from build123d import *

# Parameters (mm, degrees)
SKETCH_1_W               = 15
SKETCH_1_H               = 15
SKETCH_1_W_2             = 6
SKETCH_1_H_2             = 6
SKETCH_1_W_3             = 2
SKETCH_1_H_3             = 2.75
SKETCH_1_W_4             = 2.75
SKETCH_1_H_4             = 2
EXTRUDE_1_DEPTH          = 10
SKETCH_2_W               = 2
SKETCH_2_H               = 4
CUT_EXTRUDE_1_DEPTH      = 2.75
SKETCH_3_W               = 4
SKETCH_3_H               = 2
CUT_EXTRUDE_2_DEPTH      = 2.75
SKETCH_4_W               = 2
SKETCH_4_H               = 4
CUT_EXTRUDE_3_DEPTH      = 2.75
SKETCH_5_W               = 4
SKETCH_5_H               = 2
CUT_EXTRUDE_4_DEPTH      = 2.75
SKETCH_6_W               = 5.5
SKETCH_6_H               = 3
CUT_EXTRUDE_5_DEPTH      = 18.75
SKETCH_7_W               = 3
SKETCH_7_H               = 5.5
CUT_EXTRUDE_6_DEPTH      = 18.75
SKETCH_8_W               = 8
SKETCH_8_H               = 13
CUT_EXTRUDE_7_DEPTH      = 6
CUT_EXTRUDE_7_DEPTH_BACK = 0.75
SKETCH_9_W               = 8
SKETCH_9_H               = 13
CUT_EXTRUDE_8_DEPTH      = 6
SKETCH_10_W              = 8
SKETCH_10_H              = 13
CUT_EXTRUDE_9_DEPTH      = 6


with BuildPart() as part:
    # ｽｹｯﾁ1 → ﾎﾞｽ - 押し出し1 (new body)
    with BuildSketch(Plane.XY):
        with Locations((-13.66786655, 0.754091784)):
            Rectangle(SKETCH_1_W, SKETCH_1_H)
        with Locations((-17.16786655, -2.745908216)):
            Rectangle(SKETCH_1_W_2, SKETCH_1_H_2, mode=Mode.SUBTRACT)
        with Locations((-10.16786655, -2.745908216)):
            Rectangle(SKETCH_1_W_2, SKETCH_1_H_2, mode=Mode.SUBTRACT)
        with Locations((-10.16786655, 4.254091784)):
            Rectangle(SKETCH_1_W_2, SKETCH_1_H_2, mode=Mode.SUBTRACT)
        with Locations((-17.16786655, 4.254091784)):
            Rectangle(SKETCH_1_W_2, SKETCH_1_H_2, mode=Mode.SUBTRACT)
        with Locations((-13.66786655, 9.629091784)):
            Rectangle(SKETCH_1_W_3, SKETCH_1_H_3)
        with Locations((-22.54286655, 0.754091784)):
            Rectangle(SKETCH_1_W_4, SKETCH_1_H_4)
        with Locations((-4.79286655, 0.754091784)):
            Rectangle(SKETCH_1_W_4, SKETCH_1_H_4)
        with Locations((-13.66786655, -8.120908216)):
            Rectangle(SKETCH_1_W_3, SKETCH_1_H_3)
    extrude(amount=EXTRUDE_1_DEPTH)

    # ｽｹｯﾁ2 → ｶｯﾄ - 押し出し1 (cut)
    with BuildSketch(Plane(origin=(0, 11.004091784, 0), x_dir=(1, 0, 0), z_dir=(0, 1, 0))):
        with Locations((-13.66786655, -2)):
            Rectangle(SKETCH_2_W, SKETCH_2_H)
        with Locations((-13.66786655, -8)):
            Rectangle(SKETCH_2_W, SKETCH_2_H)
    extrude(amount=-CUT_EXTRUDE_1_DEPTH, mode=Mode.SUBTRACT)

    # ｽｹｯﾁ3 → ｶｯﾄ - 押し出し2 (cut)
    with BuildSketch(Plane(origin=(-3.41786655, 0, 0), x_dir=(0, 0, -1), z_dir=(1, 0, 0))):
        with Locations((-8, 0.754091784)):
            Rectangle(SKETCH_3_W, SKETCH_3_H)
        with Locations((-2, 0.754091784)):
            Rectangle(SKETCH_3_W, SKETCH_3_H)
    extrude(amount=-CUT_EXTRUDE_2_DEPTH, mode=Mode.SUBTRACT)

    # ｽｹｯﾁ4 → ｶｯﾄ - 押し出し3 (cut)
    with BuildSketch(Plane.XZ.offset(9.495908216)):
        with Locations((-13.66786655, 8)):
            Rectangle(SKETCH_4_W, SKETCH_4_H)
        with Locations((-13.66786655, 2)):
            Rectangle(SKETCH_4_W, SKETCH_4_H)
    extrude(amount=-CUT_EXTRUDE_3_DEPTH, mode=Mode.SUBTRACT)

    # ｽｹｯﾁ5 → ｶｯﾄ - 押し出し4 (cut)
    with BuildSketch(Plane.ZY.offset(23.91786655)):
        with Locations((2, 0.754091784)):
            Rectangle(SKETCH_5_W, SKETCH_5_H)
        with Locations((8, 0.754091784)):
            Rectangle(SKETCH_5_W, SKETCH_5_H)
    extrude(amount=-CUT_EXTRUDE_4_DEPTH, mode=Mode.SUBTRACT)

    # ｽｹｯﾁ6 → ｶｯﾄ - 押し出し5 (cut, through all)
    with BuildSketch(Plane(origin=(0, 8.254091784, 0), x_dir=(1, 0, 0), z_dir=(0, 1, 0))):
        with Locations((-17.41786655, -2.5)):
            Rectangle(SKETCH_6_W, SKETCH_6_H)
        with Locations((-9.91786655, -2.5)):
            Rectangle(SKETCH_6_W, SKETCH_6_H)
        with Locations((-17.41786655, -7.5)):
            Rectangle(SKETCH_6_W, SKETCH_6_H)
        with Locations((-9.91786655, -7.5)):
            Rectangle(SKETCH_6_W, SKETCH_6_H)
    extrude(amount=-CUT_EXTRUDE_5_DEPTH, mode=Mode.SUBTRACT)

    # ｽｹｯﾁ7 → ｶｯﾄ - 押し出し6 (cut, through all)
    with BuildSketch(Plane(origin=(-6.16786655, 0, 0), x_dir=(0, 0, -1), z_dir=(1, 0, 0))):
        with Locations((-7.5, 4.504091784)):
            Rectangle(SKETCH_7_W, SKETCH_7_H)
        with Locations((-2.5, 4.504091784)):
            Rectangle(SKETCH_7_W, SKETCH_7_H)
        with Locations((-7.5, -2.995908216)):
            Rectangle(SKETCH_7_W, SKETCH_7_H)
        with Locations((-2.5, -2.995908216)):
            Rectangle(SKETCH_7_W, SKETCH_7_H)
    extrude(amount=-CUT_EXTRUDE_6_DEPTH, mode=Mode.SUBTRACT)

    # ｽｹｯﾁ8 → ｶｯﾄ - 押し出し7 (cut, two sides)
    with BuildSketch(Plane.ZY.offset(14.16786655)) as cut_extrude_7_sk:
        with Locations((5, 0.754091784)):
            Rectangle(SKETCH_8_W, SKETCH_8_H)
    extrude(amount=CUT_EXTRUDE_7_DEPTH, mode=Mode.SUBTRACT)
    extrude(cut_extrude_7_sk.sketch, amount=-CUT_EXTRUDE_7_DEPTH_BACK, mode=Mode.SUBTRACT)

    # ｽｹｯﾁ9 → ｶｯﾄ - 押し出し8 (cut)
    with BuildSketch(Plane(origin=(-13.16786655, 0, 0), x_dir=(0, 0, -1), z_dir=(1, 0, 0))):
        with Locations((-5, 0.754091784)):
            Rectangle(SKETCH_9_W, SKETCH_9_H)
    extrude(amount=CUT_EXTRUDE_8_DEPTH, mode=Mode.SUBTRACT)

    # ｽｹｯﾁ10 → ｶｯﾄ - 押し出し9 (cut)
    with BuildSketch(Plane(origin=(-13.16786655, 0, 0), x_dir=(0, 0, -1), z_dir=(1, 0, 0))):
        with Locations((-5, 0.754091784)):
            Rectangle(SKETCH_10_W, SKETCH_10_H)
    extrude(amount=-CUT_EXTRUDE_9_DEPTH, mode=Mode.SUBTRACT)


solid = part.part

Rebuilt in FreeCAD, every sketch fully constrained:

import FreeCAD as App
import Part
import Sketcher

doc = App.newDocument("Part")
params = doc.addObject("Spreadsheet::Sheet", "Params")
for row, (alias, value) in enumerate([
    ("sketch1_width", "2 mm"),
    ("sketch1_width2", "6 mm"),
    ("sketch1_width3", "6.5 mm"),
    ("sketch1_width4", "2.75 mm"),
    ("pad1_length", "10 mm"),
    ("sketch2_width", "2 mm"),
    ("sketch2_height", "4 mm"),
    ("pocket1_length", "2.75 mm"),
    ("sketch3_width", "2 mm"),
    ("sketch3_height", "4 mm"),
    ("pocket2_length", "2.75 mm"),
    ("sketch4_width", "2 mm"),
    ("sketch4_height", "4 mm"),
    ("pocket3_length", "2.75 mm"),
    ("sketch5_width", "2 mm"),
    ("sketch5_height", "4 mm"),
    ("pocket4_length", "2.75 mm"),
    ("sketch6_height", "3 mm"),
    ("sketch6_width", "5.5 mm"),
    ("sketch7_height", "3 mm"),
    ("sketch7_width", "5.5 mm"),
    ("sketch8_width", "13 mm"),
    ("sketch8_height", "8 mm"),
    ("pocket7_length", "6 mm"),
    ("pocket7_length2", "0.75 mm"),
    ("sketch9_width", "13 mm"),
    ("sketch9_height", "8 mm"),
    ("pocket8_length", "6 mm"),
    ("sketch10_width", "13 mm"),
    ("sketch10_height", "8 mm"),
    ("pocket9_length", "6 mm"),
], start=1):
    params.set(f"A{row}", alias)
    params.set(f"B{row}", "=" + value)
    params.setAlias(f"B{row}", alias)

body = doc.addObject("PartDesign::Body", "Body")

# Sketch on XY plane
sketch1 = body.newObject("Sketcher::SketchObject", "Sketch")
sketch1.AttachmentSupport = (doc.getObject("XY_Plane"), [""])
sketch1.MapMode = "FlatFace"
sketch1.addGeometry([
    Part.LineSegment(App.Vector(-21.167867, -0.245908, 0), App.Vector(-21.167867, -6.745908, 0)),  # 0
    Part.LineSegment(App.Vector(-21.167867, -6.745908, 0), App.Vector(-14.667867, -6.745908, 0)),  # 1
    Part.LineSegment(App.Vector(-14.667867, -6.745908, 0), App.Vector(-14.667867, -9.495908, 0)),  # 2
    Part.LineSegment(App.Vector(-14.667867, -9.495908, 0), App.Vector(-12.667867, -9.495908, 0)),  # 3
    Part.LineSegment(App.Vector(-12.667867, -9.495908, 0), App.Vector(-12.667867, -6.745908, 0)),  # 4
    Part.LineSegment(App.Vector(-12.667867, -6.745908, 0), App.Vector(-6.167867, -6.745908, 0)),  # 5
    Part.LineSegment(App.Vector(-6.167867, -6.745908, 0), App.Vector(-6.167867, -0.245908, 0)),  # 6
    Part.LineSegment(App.Vector(-6.167867, -0.245908, 0), App.Vector(-3.417867, -0.245908, 0)),  # 7
    Part.LineSegment(App.Vector(-3.417867, -0.245908, 0), App.Vector(-3.417867, 1.754092, 0)),  # 8
    Part.LineSegment(App.Vector(-3.417867, 1.754092, 0), App.Vector(-6.167867, 1.754092, 0)),  # 9
    Part.LineSegment(App.Vector(-6.167867, 1.754092, 0), App.Vector(-6.167867, 8.254092, 0)),  # 10
    Part.LineSegment(App.Vector(-6.167867, 8.254092, 0), App.Vector(-12.667867, 8.254092, 0)),  # 11
    Part.LineSegment(App.Vector(-12.667867, 8.254092, 0), App.Vector(-12.667867, 11.004092, 0)),  # 12
    Part.LineSegment(App.Vector(-12.667867, 11.004092, 0), App.Vector(-14.667867, 11.004092, 0)),  # 13
    Part.LineSegment(App.Vector(-14.667867, 11.004092, 0), App.Vector(-14.667867, 8.254092, 0)),  # 14
    Part.LineSegment(App.Vector(-14.667867, 8.254092, 0), App.Vector(-21.167867, 8.254092, 0)),  # 15
    Part.LineSegment(App.Vector(-21.167867, 8.254092, 0), App.Vector(-21.167867, 1.754092, 0)),  # 16
    Part.LineSegment(App.Vector(-21.167867, 1.754092, 0), App.Vector(-23.917867, 1.754092, 0)),  # 17
    Part.LineSegment(App.Vector(-23.917867, 1.754092, 0), App.Vector(-23.917867, -0.245908, 0)),  # 18
    Part.LineSegment(App.Vector(-23.917867, -0.245908, 0), App.Vector(-21.167867, -0.245908, 0)),  # 19
    Part.LineSegment(App.Vector(-14.167867, -5.745908, 0), App.Vector(-20.167867, -5.745908, 0)),  # 20
    Part.LineSegment(App.Vector(-20.167867, -5.745908, 0), App.Vector(-20.167867, 0.254092, 0)),  # 21
    Part.LineSegment(App.Vector(-20.167867, 0.254092, 0), App.Vector(-14.167867, 0.254092, 0)),  # 22
    Part.LineSegment(App.Vector(-14.167867, 0.254092, 0), App.Vector(-14.167867, -5.745908, 0)),  # 23
    Part.LineSegment(App.Vector(-7.167867, -5.745908, 0), App.Vector(-13.167867, -5.745908, 0)),  # 24
    Part.LineSegment(App.Vector(-13.167867, -5.745908, 0), App.Vector(-13.167867, 0.254092, 0)),  # 25
    Part.LineSegment(App.Vector(-13.167867, 0.254092, 0), App.Vector(-7.167867, 0.254092, 0)),  # 26
    Part.LineSegment(App.Vector(-7.167867, 0.254092, 0), App.Vector(-7.167867, -5.745908, 0)),  # 27
    Part.LineSegment(App.Vector(-14.167867, 1.254092, 0), App.Vector(-20.167867, 1.254092, 0)),  # 28
    Part.LineSegment(App.Vector(-20.167867, 1.254092, 0), App.Vector(-20.167867, 7.254092, 0)),  # 29
    Part.LineSegment(App.Vector(-20.167867, 7.254092, 0), App.Vector(-14.167867, 7.254092, 0)),  # 30
    Part.LineSegment(App.Vector(-14.167867, 7.254092, 0), App.Vector(-14.167867, 1.254092, 0)),  # 31
    Part.LineSegment(App.Vector(-7.167867, 1.254092, 0), App.Vector(-13.167867, 1.254092, 0)),  # 32
    Part.LineSegment(App.Vector(-13.167867, 1.254092, 0), App.Vector(-13.167867, 7.254092, 0)),  # 33
    Part.LineSegment(App.Vector(-13.167867, 7.254092, 0), App.Vector(-7.167867, 7.254092, 0)),  # 34
    Part.LineSegment(App.Vector(-7.167867, 7.254092, 0), App.Vector(-7.167867, 1.254092, 0)),  # 35
], False)
sketch1.addConstraint([
    Sketcher.Constraint("Coincident", 0, 2, 1, 1),
    Sketcher.Constraint("Coincident", 1, 2, 2, 1),
    Sketcher.Constraint("Coincident", 2, 2, 3, 1),
    Sketcher.Constraint("Coincident", 3, 2, 4, 1),
    Sketcher.Constraint("Coincident", 4, 2, 5, 1),
    Sketcher.Constraint("Coincident", 5, 2, 6, 1),
    Sketcher.Constraint("Coincident", 6, 2, 7, 1),
    Sketcher.Constraint("Coincident", 7, 2, 8, 1),
    Sketcher.Constraint("Coincident", 8, 2, 9, 1),
    Sketcher.Constraint("Coincident", 9, 2, 10, 1),
    Sketcher.Constraint("Coincident", 10, 2, 11, 1),
    Sketcher.Constraint("Coincident", 11, 2, 12, 1),
    Sketcher.Constraint("Coincident", 12, 2, 13, 1),
    Sketcher.Constraint("Coincident", 13, 2, 14, 1),
    Sketcher.Constraint("Coincident", 14, 2, 15, 1),
    Sketcher.Constraint("Coincident", 15, 2, 16, 1),
    Sketcher.Constraint("Coincident", 16, 2, 17, 1),
    Sketcher.Constraint("Coincident", 17, 2, 18, 1),
    Sketcher.Constraint("Coincident", 18, 2, 19, 1),
    Sketcher.Constraint("Coincident", 19, 2, 0, 1),
    Sketcher.Constraint("Coincident", 20, 2, 21, 1),
    Sketcher.Constraint("Coincident", 21, 2, 22, 1),
    Sketcher.Constraint("Coincident", 22, 2, 23, 1),
    Sketcher.Constraint("Coincident", 23, 2, 20, 1),
    Sketcher.Constraint("Coincident", 24, 2, 25, 1),
    Sketcher.Constraint("Coincident", 25, 2, 26, 1),
    Sketcher.Constraint("Coincident", 26, 2, 27, 1),
    Sketcher.Constraint("Coincident", 27, 2, 24, 1),
    Sketcher.Constraint("Coincident", 28, 2, 29, 1),
    Sketcher.Constraint("Coincident", 29, 2, 30, 1),
    Sketcher.Constraint("Coincident", 30, 2, 31, 1),
    Sketcher.Constraint("Coincident", 31, 2, 28, 1),
    Sketcher.Constraint("Coincident", 32, 2, 33, 1),
    Sketcher.Constraint("Coincident", 33, 2, 34, 1),
    Sketcher.Constraint("Coincident", 34, 2, 35, 1),
    Sketcher.Constraint("Coincident", 35, 2, 32, 1),
    Sketcher.Constraint("Vertical", 0),
    Sketcher.Constraint("Horizontal", 1),
    Sketcher.Constraint("Vertical", 2),
    Sketcher.Constraint("Horizontal", 3),
    Sketcher.Constraint("Vertical", 4),
    Sketcher.Constraint("Horizontal", 5),
    Sketcher.Constraint("Vertical", 6),
    Sketcher.Constraint("Horizontal", 7),
    Sketcher.Constraint("Vertical", 8),
    Sketcher.Constraint("Horizontal", 9),
    Sketcher.Constraint("Vertical", 10),
    Sketcher.Constraint("Horizontal", 11),
    Sketcher.Constraint("Vertical", 12),
    Sketcher.Constraint("Horizontal", 13),
    Sketcher.Constraint("Vertical", 14),
    Sketcher.Constraint("Horizontal", 15),
    Sketcher.Constraint("Vertical", 16),
    Sketcher.Constraint("Horizontal", 17),
    Sketcher.Constraint("Vertical", 18),
    Sketcher.Constraint("Horizontal", 19),
    Sketcher.Constraint("Horizontal", 20),
    Sketcher.Constraint("Vertical", 21),
    Sketcher.Constraint("Horizontal", 22),
    Sketcher.Constraint("Vertical", 23),
    Sketcher.Constraint("Horizontal", 24),
    Sketcher.Constraint("Vertical", 25),
    Sketcher.Constraint("Horizontal", 26),
    Sketcher.Constraint("Vertical", 27),
    Sketcher.Constraint("Horizontal", 28),
    Sketcher.Constraint("Vertical", 29),
    Sketcher.Constraint("Horizontal", 30),
    Sketcher.Constraint("Vertical", 31),
    Sketcher.Constraint("Horizontal", 32),
    Sketcher.Constraint("Vertical", 33),
    Sketcher.Constraint("Horizontal", 34),
    Sketcher.Constraint("Vertical", 35),
    Sketcher.Constraint("Horizontal", 1, 2, 4, 2),
    Sketcher.Constraint("Horizontal", 11, 2, 14, 2),
    Sketcher.Constraint("Horizontal", 9, 2, 16, 2),
    Sketcher.Constraint("Horizontal", 7, 2, 18, 2),
    Sketcher.Constraint("Horizontal", 23, 2, 24, 2),
    Sketcher.Constraint("Horizontal", 22, 2, 25, 2),
    Sketcher.Constraint("Horizontal", 31, 2, 32, 2),
    Sketcher.Constraint("Horizontal", 30, 2, 33, 2),
    Sketcher.Constraint("Vertical", 6, 2, 9, 2),
    Sketcher.Constraint("Vertical", 4, 2, 11, 2),
    Sketcher.Constraint("Vertical", 2, 2, 13, 2),
    Sketcher.Constraint("Vertical", 0, 2, 15, 2),
    Sketcher.Constraint("Vertical", 21, 2, 28, 2),
    Sketcher.Constraint("Vertical", 23, 2, 30, 2),
    Sketcher.Constraint("Vertical", 25, 2, 32, 2),
    Sketcher.Constraint("Vertical", 27, 2, 34, 2),
    Sketcher.Constraint("Equal", 1, 5),
    Sketcher.Constraint("Equal", 9, 17),
    Sketcher.Constraint("Equal", 22, 24),
    Sketcher.Constraint("Equal", 15, 0),
    Sketcher.Constraint("Equal", 19, 2),
    Sketcher.Constraint("Equal", 13, 8),
    Sketcher.Constraint("Equal", 6, 10),
    Sketcher.Constraint("Equal", 4, 12),
    Sketcher.Constraint("Equal", 34, 21),
    Sketcher.Constraint("Equal", 27, 29),
    Sketcher.Constraint("DistanceX", 3, 1, 3, 2, 2.0),
    Sketcher.Constraint("DistanceX", 20, 2, 20, 1, 6.0),
    Sketcher.Constraint("DistanceX", 1, 1, 1, 2, 6.5),
    Sketcher.Constraint("DistanceX", 0, 2, 20, 2, 1.0),
    Sketcher.Constraint("DistanceY", 0, 2, 20, 2, 1.0),
    Sketcher.Constraint("DistanceX", 23, 2, 24, 2, 1.0),
    Sketcher.Constraint("DistanceY", 21, 2, 28, 2, 1.0),
    Sketcher.Constraint("DistanceX", 7, 1, 7, 2, 2.75),
    Sketcher.Constraint("DistanceY", 0, 2, -1, 1, 6.745908),
    Sketcher.Constraint("DistanceX", 0, 2, -1, 1, 21.167867),
])
sketch1.setExpression("Constraints[98]", "Params.sketch1_width")
sketch1.setExpression("Constraints[99]", "Params.sketch1_width2")
sketch1.setExpression("Constraints[100]", "Params.sketch1_width3")
sketch1.setExpression("Constraints[105]", "Params.sketch1_width4")
pad1 = body.newObject("PartDesign::Pad", "Pad")
pad1.Profile = sketch1
pad1.setExpression("Length", "Params.pad1_length")

# Sketch on XZ plane
sketch2 = body.newObject("Sketcher::SketchObject", "Sketch001")
sketch2.AttachmentSupport = (doc.getObject("XZ_Plane"), [""])
sketch2.MapMode = "FlatFace"
sketch2.AttachmentOffset = App.Placement(App.Vector(0, 0, -11.004092), App.Rotation())
sketch2.addGeometry([
    Part.LineSegment(App.Vector(-14.667867, 0, 0), App.Vector(-14.667867, 4, 0)),  # 0
    Part.LineSegment(App.Vector(-14.667867, 4, 0), App.Vector(-12.667867, 4, 0)),  # 1
    Part.LineSegment(App.Vector(-12.667867, 4, 0), App.Vector(-12.667867, 0, 0)),  # 2
    Part.LineSegment(App.Vector(-12.667867, 0, 0), App.Vector(-14.667867, 0, 0)),  # 3
    Part.LineSegment(App.Vector(-14.667867, 6, 0), App.Vector(-14.667867, 10, 0)),  # 4
    Part.LineSegment(App.Vector(-14.667867, 10, 0), App.Vector(-12.667867, 10, 0)),  # 5
    Part.LineSegment(App.Vector(-12.667867, 10, 0), App.Vector(-12.667867, 6, 0)),  # 6
    Part.LineSegment(App.Vector(-12.667867, 6, 0), App.Vector(-14.667867, 6, 0)),  # 7
], False)
sketch2.addConstraint([
    Sketcher.Constraint("Coincident", 0, 2, 1, 1),
    Sketcher.Constraint("Coincident", 1, 2, 2, 1),
    Sketcher.Constraint("Coincident", 2, 2, 3, 1),
    Sketcher.Constraint("Coincident", 3, 2, 0, 1),
    Sketcher.Constraint("Coincident", 4, 2, 5, 1),
    Sketcher.Constraint("Coincident", 5, 2, 6, 1),
    Sketcher.Constraint("Coincident", 6, 2, 7, 1),
    Sketcher.Constraint("Coincident", 7, 2, 4, 1),
    Sketcher.Constraint("Vertical", 0),
    Sketcher.Constraint("Horizontal", 1),
    Sketcher.Constraint("Vertical", 2),
    Sketcher.Constraint("Horizontal", 3),
    Sketcher.Constraint("Vertical", 4),
    Sketcher.Constraint("Horizontal", 5),
    Sketcher.Constraint("Vertical", 6),
    Sketcher.Constraint("Horizontal", 7),
    Sketcher.Constraint("PointOnObject", 2, 2, -1),
    Sketcher.Constraint("Vertical", 3, 2, 4, 2),
    Sketcher.Constraint("Vertical", 2, 2, 5, 2),
    Sketcher.Constraint("Equal", 2, 4),
    Sketcher.Constraint("DistanceX", 1, 1, 1, 2, 2.0),
    Sketcher.Constraint("DistanceY", 0, 1, 0, 2, 4.0),
    Sketcher.Constraint("DistanceY", -1, 1, 4, 2, 10.0),
    Sketcher.Constraint("DistanceX", 0, 2, -1, 1, 14.667867),
])
sketch2.setExpression("Constraints[20]", "Params.sketch2_width")
sketch2.setExpression("Constraints[21]", "Params.sketch2_height")
pocket1 = body.newObject("PartDesign::Pocket", "Pocket")
pocket1.Profile = sketch2
pocket1.setExpression("Length", "Params.pocket1_length")
pocket1.Reversed = True

# Sketch on YZ plane
sketch3 = body.newObject("Sketcher::SketchObject", "Sketch002")
sketch3.AttachmentSupport = (doc.getObject("YZ_Plane"), [""])
sketch3.MapMode = "FlatFace"
sketch3.AttachmentOffset = App.Placement(App.Vector(0, 0, -3.417867), App.Rotation())
sketch3.addGeometry([
    Part.LineSegment(App.Vector(1.754092, 10, 0), App.Vector(-0.245908, 10, 0)),  # 0
    Part.LineSegment(App.Vector(-0.245908, 10, 0), App.Vector(-0.245908, 6, 0)),  # 1
    Part.LineSegment(App.Vector(-0.245908, 6, 0), App.Vector(1.754092, 6, 0)),  # 2
    Part.LineSegment(App.Vector(1.754092, 6, 0), App.Vector(1.754092, 10, 0)),  # 3
    Part.LineSegment(App.Vector(1.754092, 4, 0), App.Vector(-0.245908, 4, 0)),  # 4
    Part.LineSegment(App.Vector(-0.245908, 4, 0), App.Vector(-0.245908, 0, 0)),  # 5
    Part.LineSegment(App.Vector(-0.245908, 0, 0), App.Vector(1.754092, 0, 0)),  # 6
    Part.LineSegment(App.Vector(1.754092, 0, 0), App.Vector(1.754092, 4, 0)),  # 7
], False)
sketch3.addConstraint([
    Sketcher.Constraint("Coincident", 0, 2, 1, 1),
    Sketcher.Constraint("Coincident", 1, 2, 2, 1),
    Sketcher.Constraint("Coincident", 2, 2, 3, 1),
    Sketcher.Constraint("Coincident", 3, 2, 0, 1),
    Sketcher.Constraint("Coincident", 4, 2, 5, 1),
    Sketcher.Constraint("Coincident", 5, 2, 6, 1),
    Sketcher.Constraint("Coincident", 6, 2, 7, 1),
    Sketcher.Constraint("Coincident", 7, 2, 4, 1),
    Sketcher.Constraint("Horizontal", 0),
    Sketcher.Constraint("Vertical", 1),
    Sketcher.Constraint("Horizontal", 2),
    Sketcher.Constraint("Vertical", 3),
    Sketcher.Constraint("Horizontal", 4),
    Sketcher.Constraint("Vertical", 5),
    Sketcher.Constraint("Horizontal", 6),
    Sketcher.Constraint("Vertical", 7),
    Sketcher.Constraint("PointOnObject", 5, 2, -1),
    Sketcher.Constraint("Vertical", 1, 2, 4, 2),
    Sketcher.Constraint("Vertical", 3, 2, 6, 2),
    Sketcher.Constraint("Equal", 3, 5),
    Sketcher.Constraint("DistanceX", 0, 2, 0, 1, 2.0),
    Sketcher.Constraint("DistanceY", 1, 2, 1, 1, 4.0),
    Sketcher.Constraint("DistanceY", -1, 1, 0, 2, 10.0),
    Sketcher.Constraint("DistanceX", 0, 2, -1, 1, 0.245908),
])
sketch3.setExpression("Constraints[20]", "Params.sketch3_width")
sketch3.setExpression("Constraints[21]", "Params.sketch3_height")
pocket2 = body.newObject("PartDesign::Pocket", "Pocket001")
pocket2.Profile = sketch3
pocket2.setExpression("Length", "Params.pocket2_length")

# Sketch on XZ plane
sketch4 = body.newObject("Sketcher::SketchObject", "Sketch003")
sketch4.AttachmentSupport = (doc.getObject("XZ_Plane"), [""])
sketch4.MapMode = "FlatFace"
sketch4.AttachmentOffset = App.Placement(App.Vector(0, 0, 9.495908), App.Rotation())
sketch4.addGeometry([
    Part.LineSegment(App.Vector(-14.667867, 10, 0), App.Vector(-14.667867, 6, 0)),  # 0
    Part.LineSegment(App.Vector(-14.667867, 6, 0), App.Vector(-12.667867, 6, 0)),  # 1
    Part.LineSegment(App.Vector(-12.667867, 6, 0), App.Vector(-12.667867, 10, 0)),  # 2
    Part.LineSegment(App.Vector(-12.667867, 10, 0), App.Vector(-14.667867, 10, 0)),  # 3
    Part.LineSegment(App.Vector(-14.667867, 4, 0), App.Vector(-14.667867, 0, 0)),  # 4
    Part.LineSegment(App.Vector(-14.667867, 0, 0), App.Vector(-12.667867, 0, 0)),  # 5
    Part.LineSegment(App.Vector(-12.667867, 0, 0), App.Vector(-12.667867, 4, 0)),  # 6
    Part.LineSegment(App.Vector(-12.667867, 4, 0), App.Vector(-14.667867, 4, 0)),  # 7
], False)
sketch4.addConstraint([
    Sketcher.Constraint("Coincident", 0, 2, 1, 1),
    Sketcher.Constraint("Coincident", 1, 2, 2, 1),
    Sketcher.Constraint("Coincident", 2, 2, 3, 1),
    Sketcher.Constraint("Coincident", 3, 2, 0, 1),
    Sketcher.Constraint("Coincident", 4, 2, 5, 1),
    Sketcher.Constraint("Coincident", 5, 2, 6, 1),
    Sketcher.Constraint("Coincident", 6, 2, 7, 1),
    Sketcher.Constraint("Coincident", 7, 2, 4, 1),
    Sketcher.Constraint("Vertical", 0),
    Sketcher.Constraint("Horizontal", 1),
    Sketcher.Constraint("Vertical", 2),
    Sketcher.Constraint("Horizontal", 3),
    Sketcher.Constraint("Vertical", 4),
    Sketcher.Constraint("Horizontal", 5),
    Sketcher.Constraint("Vertical", 6),
    Sketcher.Constraint("Horizontal", 7),
    Sketcher.Constraint("PointOnObject", 4, 2, -1),
    Sketcher.Constraint("Vertical", 3, 2, 4, 2),
    Sketcher.Constraint("Vertical", 2, 2, 5, 2),
    Sketcher.Constraint("Equal", 2, 4),
    Sketcher.Constraint("DistanceX", 1, 1, 1, 2, 2.0),
    Sketcher.Constraint("DistanceY", 0, 2, 0, 1, 4.0),
    Sketcher.Constraint("DistanceY", -1, 1, 0, 2, 6.0),
    Sketcher.Constraint("DistanceX", 0, 2, -1, 1, 14.667867),
])
sketch4.setExpression("Constraints[20]", "Params.sketch4_width")
sketch4.setExpression("Constraints[21]", "Params.sketch4_height")
pocket3 = body.newObject("PartDesign::Pocket", "Pocket002")
pocket3.Profile = sketch4
pocket3.setExpression("Length", "Params.pocket3_length")

# Sketch on YZ plane
sketch5 = body.newObject("Sketcher::SketchObject", "Sketch004")
sketch5.AttachmentSupport = (doc.getObject("YZ_Plane"), [""])
sketch5.MapMode = "FlatFace"
sketch5.AttachmentOffset = App.Placement(App.Vector(0, 0, -23.917867), App.Rotation())
sketch5.addGeometry([
    Part.LineSegment(App.Vector(1.754092, 0, 0), App.Vector(-0.245908, 0, 0)),  # 0
    Part.LineSegment(App.Vector(-0.245908, 0, 0), App.Vector(-0.245908, 4, 0)),  # 1
    Part.LineSegment(App.Vector(-0.245908, 4, 0), App.Vector(1.754092, 4, 0)),  # 2
    Part.LineSegment(App.Vector(1.754092, 4, 0), App.Vector(1.754092, 0, 0)),  # 3
    Part.LineSegment(App.Vector(1.754092, 6, 0), App.Vector(-0.245908, 6, 0)),  # 4
    Part.LineSegment(App.Vector(-0.245908, 6, 0), App.Vector(-0.245908, 10, 0)),  # 5
    Part.LineSegment(App.Vector(-0.245908, 10, 0), App.Vector(1.754092, 10, 0)),  # 6
    Part.LineSegment(App.Vector(1.754092, 10, 0), App.Vector(1.754092, 6, 0)),  # 7
], False)
sketch5.addConstraint([
    Sketcher.Constraint("Coincident", 0, 2, 1, 1),
    Sketcher.Constraint("Coincident", 1, 2, 2, 1),
    Sketcher.Constraint("Coincident", 2, 2, 3, 1),
    Sketcher.Constraint("Coincident", 3, 2, 0, 1),
    Sketcher.Constraint("Coincident", 4, 2, 5, 1),
    Sketcher.Constraint("Coincident", 5, 2, 6, 1),
    Sketcher.Constraint("Coincident", 6, 2, 7, 1),
    Sketcher.Constraint("Coincident", 7, 2, 4, 1),
    Sketcher.Constraint("Horizontal", 0),
    Sketcher.Constraint("Vertical", 1),
    Sketcher.Constraint("Horizontal", 2),
    Sketcher.Constraint("Vertical", 3),
    Sketcher.Constraint("Horizontal", 4),
    Sketcher.Constraint("Vertical", 5),
    Sketcher.Constraint("Horizontal", 6),
    Sketcher.Constraint("Vertical", 7),
    Sketcher.Constraint("PointOnObject", 0, 2, -1),
    Sketcher.Constraint("Vertical", 1, 2, 4, 2),
    Sketcher.Constraint("Vertical", 3, 2, 6, 2),
    Sketcher.Constraint("Equal", 3, 5),
    Sketcher.Constraint("DistanceX", 0, 2, 0, 1, 2.0),
    Sketcher.Constraint("DistanceY", 1, 1, 1, 2, 4.0),
    Sketcher.Constraint("DistanceY", -1, 1, 4, 2, 6.0),
    Sketcher.Constraint("DistanceX", 0, 2, -1, 1, 0.245908),
])
sketch5.setExpression("Constraints[20]", "Params.sketch5_width")
sketch5.setExpression("Constraints[21]", "Params.sketch5_height")
pocket4 = body.newObject("PartDesign::Pocket", "Pocket003")
pocket4.Profile = sketch5
pocket4.setExpression("Length", "Params.pocket4_length")
pocket4.Reversed = True

# Sketch on XZ plane
sketch6 = body.newObject("Sketcher::SketchObject", "Sketch005")
sketch6.AttachmentSupport = (doc.getObject("XZ_Plane"), [""])
sketch6.MapMode = "FlatFace"
sketch6.AttachmentOffset = App.Placement(App.Vector(0, 0, -8.254092), App.Rotation())
sketch6.addGeometry([
    Part.LineSegment(App.Vector(-20.167867, 1, 0), App.Vector(-20.167867, 4, 0)),  # 0
    Part.LineSegment(App.Vector(-20.167867, 4, 0), App.Vector(-14.667867, 4, 0)),  # 1
    Part.LineSegment(App.Vector(-14.667867, 4, 0), App.Vector(-14.667867, 1, 0)),  # 2
    Part.LineSegment(App.Vector(-14.667867, 1, 0), App.Vector(-20.167867, 1, 0)),  # 3
    Part.LineSegment(App.Vector(-12.667867, 1, 0), App.Vector(-12.667867, 4, 0)),  # 4
    Part.LineSegment(App.Vector(-12.667867, 4, 0), App.Vector(-7.167867, 4, 0)),  # 5
    Part.LineSegment(App.Vector(-7.167867, 4, 0), App.Vector(-7.167867, 1, 0)),  # 6
    Part.LineSegment(App.Vector(-7.167867, 1, 0), App.Vector(-12.667867, 1, 0)),  # 7
    Part.LineSegment(App.Vector(-20.167867, 6, 0), App.Vector(-20.167867, 9, 0)),  # 8
    Part.LineSegment(App.Vector(-20.167867, 9, 0), App.Vector(-14.667867, 9, 0)),  # 9
    Part.LineSegment(App.Vector(-14.667867, 9, 0), App.Vector(-14.667867, 6, 0)),  # 10
    Part.LineSegment(App.Vector(-14.667867, 6, 0), App.Vector(-20.167867, 6, 0)),  # 11
    Part.LineSegment(App.Vector(-12.667867, 6, 0), App.Vector(-12.667867, 9, 0)),  # 12
    Part.LineSegment(App.Vector(-12.667867, 9, 0), App.Vector(-7.167867, 9, 0)),  # 13
    Part.LineSegment(App.Vector(-7.167867, 9, 0), App.Vector(-7.167867, 6, 0)),  # 14
    Part.LineSegment(App.Vector(-7.167867, 6, 0), App.Vector(-12.667867, 6, 0)),  # 15
], False)
sketch6.addConstraint([
    Sketcher.Constraint("Coincident", 0, 2, 1, 1),
    Sketcher.Constraint("Coincident", 1, 2, 2, 1),
    Sketcher.Constraint("Coincident", 2, 2, 3, 1),
    Sketcher.Constraint("Coincident", 3, 2, 0, 1),
    Sketcher.Constraint("Coincident", 4, 2, 5, 1),
    Sketcher.Constraint("Coincident", 5, 2, 6, 1),
    Sketcher.Constraint("Coincident", 6, 2, 7, 1),
    Sketcher.Constraint("Coincident", 7, 2, 4, 1),
    Sketcher.Constraint("Coincident", 8, 2, 9, 1),
    Sketcher.Constraint("Coincident", 9, 2, 10, 1),
    Sketcher.Constraint("Coincident", 10, 2, 11, 1),
    Sketcher.Constraint("Coincident", 11, 2, 8, 1),
    Sketcher.Constraint("Coincident", 12, 2, 13, 1),
    Sketcher.Constraint("Coincident", 13, 2, 14, 1),
    Sketcher.Constraint("Coincident", 14, 2, 15, 1),
    Sketcher.Constraint("Coincident", 15, 2, 12, 1),
    Sketcher.Constraint("Vertical", 0),
    Sketcher.Constraint("Horizontal", 1),
    Sketcher.Constraint("Vertical", 2),
    Sketcher.Constraint("Horizontal", 3),
    Sketcher.Constraint("Vertical", 4),
    Sketcher.Constraint("Horizontal", 5),
    Sketcher.Constraint("Vertical", 6),
    Sketcher.Constraint("Horizontal", 7),
    Sketcher.Constraint("Vertical", 8),
    Sketcher.Constraint("Horizontal", 9),
    Sketcher.Constraint("Vertical", 10),
    Sketcher.Constraint("Horizontal", 11),
    Sketcher.Constraint("Vertical", 12),
    Sketcher.Constraint("Horizontal", 13),
    Sketcher.Constraint("Vertical", 14),
    Sketcher.Constraint("Horizontal", 15),
    Sketcher.Constraint("Horizontal", 1, 2, 4, 2),
    Sketcher.Constraint("Horizontal", 3, 2, 6, 2),
    Sketcher.Constraint("Horizontal", 9, 2, 12, 2),
    Sketcher.Constraint("Horizontal", 11, 2, 14, 2),
    Sketcher.Constraint("Vertical", 3, 2, 8, 2),
    Sketcher.Constraint("Vertical", 2, 2, 9, 2),
    Sketcher.Constraint("Vertical", 7, 2, 12, 2),
    Sketcher.Constraint("Vertical", 6, 2, 13, 2),
    Sketcher.Constraint("Equal", 3, 5),
    Sketcher.Constraint("Equal", 6, 8),
    Sketcher.Constraint("DistanceY", 0, 1, 0, 2, 3.0),
    Sketcher.Constraint("DistanceX", 1, 1, 1, 2, 5.5),
    Sketcher.Constraint("DistanceY", -1, 1, 0, 2, 4.0),
    Sketcher.Constraint("DistanceY", -1, 1, 8, 2, 9.0),
    Sketcher.Constraint("DistanceX", 1, 2, 4, 2, 2.0),
    Sketcher.Constraint("DistanceX", 0, 2, -1, 1, 20.167867),
])
sketch6.setExpression("Constraints[42]", "Params.sketch6_height")
sketch6.setExpression("Constraints[43]", "Params.sketch6_width")
pocket5 = body.newObject("PartDesign::Pocket", "Pocket004")
pocket5.Profile = sketch6
pocket5.Type = "ThroughAll"
pocket5.Reversed = True

# Sketch on YZ plane
sketch7 = body.newObject("Sketcher::SketchObject", "Sketch006")
sketch7.AttachmentSupport = (doc.getObject("YZ_Plane"), [""])
sketch7.MapMode = "FlatFace"
sketch7.AttachmentOffset = App.Placement(App.Vector(0, 0, -6.167867), App.Rotation())
sketch7.addGeometry([
    Part.LineSegment(App.Vector(7.254092, 9, 0), App.Vector(1.754092, 9, 0)),  # 0
    Part.LineSegment(App.Vector(1.754092, 9, 0), App.Vector(1.754092, 6, 0)),  # 1
    Part.LineSegment(App.Vector(1.754092, 6, 0), App.Vector(7.254092, 6, 0)),  # 2
    Part.LineSegment(App.Vector(7.254092, 6, 0), App.Vector(7.254092, 9, 0)),  # 3
    Part.LineSegment(App.Vector(7.254092, 4, 0), App.Vector(1.754092, 4, 0)),  # 4
    Part.LineSegment(App.Vector(1.754092, 4, 0), App.Vector(1.754092, 1, 0)),  # 5
    Part.LineSegment(App.Vector(1.754092, 1, 0), App.Vector(7.254092, 1, 0)),  # 6
    Part.LineSegment(App.Vector(7.254092, 1, 0), App.Vector(7.254092, 4, 0)),  # 7
    Part.LineSegment(App.Vector(-0.245908, 9, 0), App.Vector(-5.745908, 9, 0)),  # 8
    Part.LineSegment(App.Vector(-5.745908, 9, 0), App.Vector(-5.745908, 6, 0)),  # 9
    Part.LineSegment(App.Vector(-5.745908, 6, 0), App.Vector(-0.245908, 6, 0)),  # 10
    Part.LineSegment(App.Vector(-0.245908, 6, 0), App.Vector(-0.245908, 9, 0)),  # 11
    Part.LineSegment(App.Vector(-0.245908, 4, 0), App.Vector(-5.745908, 4, 0)),  # 12
    Part.LineSegment(App.Vector(-5.745908, 4, 0), App.Vector(-5.745908, 1, 0)),  # 13
    Part.LineSegment(App.Vector(-5.745908, 1, 0), App.Vector(-0.245908, 1, 0)),  # 14
    Part.LineSegment(App.Vector(-0.245908, 1, 0), App.Vector(-0.245908, 4, 0)),  # 15
], False)
sketch7.addConstraint([
    Sketcher.Constraint("Coincident", 0, 2, 1, 1),
    Sketcher.Constraint("Coincident", 1, 2, 2, 1),
    Sketcher.Constraint("Coincident", 2, 2, 3, 1),
    Sketcher.Constraint("Coincident", 3, 2, 0, 1),
    Sketcher.Constraint("Coincident", 4, 2, 5, 1),
    Sketcher.Constraint("Coincident", 5, 2, 6, 1),
    Sketcher.Constraint("Coincident", 6, 2, 7, 1),
    Sketcher.Constraint("Coincident", 7, 2, 4, 1),
    Sketcher.Constraint("Coincident", 8, 2, 9, 1),
    Sketcher.Constraint("Coincident", 9, 2, 10, 1),
    Sketcher.Constraint("Coincident", 10, 2, 11, 1),
    Sketcher.Constraint("Coincident", 11, 2, 8, 1),
    Sketcher.Constraint("Coincident", 12, 2, 13, 1),
    Sketcher.Constraint("Coincident", 13, 2, 14, 1),
    Sketcher.Constraint("Coincident", 14, 2, 15, 1),
    Sketcher.Constraint("Coincident", 15, 2, 12, 1),
    Sketcher.Constraint("Horizontal", 0),
    Sketcher.Constraint("Vertical", 1),
    Sketcher.Constraint("Horizontal", 2),
    Sketcher.Constraint("Vertical", 3),
    Sketcher.Constraint("Horizontal", 4),
    Sketcher.Constraint("Vertical", 5),
    Sketcher.Constraint("Horizontal", 6),
    Sketcher.Constraint("Vertical", 7),
    Sketcher.Constraint("Horizontal", 8),
    Sketcher.Constraint("Vertical", 9),
    Sketcher.Constraint("Horizontal", 10),
    Sketcher.Constraint("Vertical", 11),
    Sketcher.Constraint("Horizontal", 12),
    Sketcher.Constraint("Vertical", 13),
    Sketcher.Constraint("Horizontal", 14),
    Sketcher.Constraint("Vertical", 15),
    Sketcher.Constraint("Horizontal", 3, 2, 8, 2),
    Sketcher.Constraint("Horizontal", 2, 2, 9, 2),
    Sketcher.Constraint("Horizontal", 7, 2, 12, 2),
    Sketcher.Constraint("Horizontal", 6, 2, 13, 2),
    Sketcher.Constraint("Vertical", 1, 2, 4, 2),
    Sketcher.Constraint("Vertical", 3, 2, 6, 2),
    Sketcher.Constraint("Vertical", 9, 2, 12, 2),
    Sketcher.Constraint("Vertical", 11, 2, 14, 2),
    Sketcher.Constraint("Equal", 6, 8),
    Sketcher.Constraint("Equal", 3, 5),
    Sketcher.Constraint("DistanceY", 1, 2, 1, 1, 3.0),
    Sketcher.Constraint("DistanceX", 0, 2, 0, 1, 5.5),
    Sketcher.Constraint("DistanceY", -1, 1, 0, 2, 9.0),
    Sketcher.Constraint("DistanceY", -1, 1, 4, 2, 4.0),
    Sketcher.Constraint("DistanceX", 8, 2, 3, 2, 13.0),
    Sketcher.Constraint("DistanceX", -1, 1, 0, 2, 1.754092),
])
sketch7.setExpression("Constraints[42]", "Params.sketch7_height")
sketch7.setExpression("Constraints[43]", "Params.sketch7_width")
pocket6 = body.newObject("PartDesign::Pocket", "Pocket005")
pocket6.Profile = sketch7
pocket6.Type = "ThroughAll"

# Sketch on YZ plane
sketch8 = body.newObject("Sketcher::SketchObject", "Sketch007")
sketch8.AttachmentSupport = (doc.getObject("YZ_Plane"), [""])
sketch8.MapMode = "FlatFace"
sketch8.AttachmentOffset = App.Placement(App.Vector(0, 0, -14.167867), App.Rotation())
sketch8.addGeometry([
    Part.LineSegment(App.Vector(7.254092, 1, 0), App.Vector(-5.745908, 1, 0)),
    Part.LineSegment(App.Vector(-5.745908, 1, 0), App.Vector(-5.745908, 9, 0)),
    Part.LineSegment(App.Vector(-5.745908, 9, 0), App.Vector(7.254092, 9, 0)),
    Part.LineSegment(App.Vector(7.254092, 9, 0), App.Vector(7.254092, 1, 0)),
], False)
sketch8.addConstraint([
    Sketcher.Constraint("Coincident", 0, 2, 1, 1),
    Sketcher.Constraint("Coincident", 1, 2, 2, 1),
    Sketcher.Constraint("Coincident", 2, 2, 3, 1),
    Sketcher.Constraint("Coincident", 3, 2, 0, 1),
    Sketcher.Constraint("Horizontal", 0),
    Sketcher.Constraint("Vertical", 1),
    Sketcher.Constraint("Horizontal", 2),
    Sketcher.Constraint("Vertical", 3),
    Sketcher.Constraint("DistanceX", 0, 2, 0, 1, 13.0),
    Sketcher.Constraint("DistanceY", 1, 1, 1, 2, 8.0),
    Sketcher.Constraint("DistanceY", -1, 1, 0, 2, 1.0),
    Sketcher.Constraint("DistanceX", 0, 2, -1, 1, 5.745908),
])
sketch8.setExpression("Constraints[8]", "Params.sketch8_width")
sketch8.setExpression("Constraints[9]", "Params.sketch8_height")
pocket7 = body.newObject("PartDesign::Pocket", "Pocket006")
pocket7.Profile = sketch8
pocket7.Type = "TwoLengths"
pocket7.setExpression("Length", "Params.pocket7_length")
pocket7.setExpression("Length2", "Params.pocket7_length2")

# Sketch on YZ plane
sketch9 = body.newObject("Sketcher::SketchObject", "Sketch008")
sketch9.AttachmentSupport = (doc.getObject("YZ_Plane"), [""])
sketch9.MapMode = "FlatFace"
sketch9.AttachmentOffset = App.Placement(App.Vector(0, 0, -13.167867), App.Rotation())
sketch9.addGeometry([
    Part.LineSegment(App.Vector(7.254092, 9, 0), App.Vector(-5.745908, 9, 0)),
    Part.LineSegment(App.Vector(-5.745908, 9, 0), App.Vector(-5.745908, 1, 0)),
    Part.LineSegment(App.Vector(-5.745908, 1, 0), App.Vector(7.254092, 1, 0)),
    Part.LineSegment(App.Vector(7.254092, 1, 0), App.Vector(7.254092, 9, 0)),
], False)
sketch9.addConstraint([
    Sketcher.Constraint("Coincident", 0, 2, 1, 1),
    Sketcher.Constraint("Coincident", 1, 2, 2, 1),
    Sketcher.Constraint("Coincident", 2, 2, 3, 1),
    Sketcher.Constraint("Coincident", 3, 2, 0, 1),
    Sketcher.Constraint("Horizontal", 0),
    Sketcher.Constraint("Vertical", 1),
    Sketcher.Constraint("Horizontal", 2),
    Sketcher.Constraint("Vertical", 3),
    Sketcher.Constraint("DistanceX", 0, 2, 0, 1, 13.0),
    Sketcher.Constraint("DistanceY", 1, 2, 1, 1, 8.0),
    Sketcher.Constraint("DistanceY", -1, 1, 0, 2, 9.0),
    Sketcher.Constraint("DistanceX", 0, 2, -1, 1, 5.745908),
])
sketch9.setExpression("Constraints[8]", "Params.sketch9_width")
sketch9.setExpression("Constraints[9]", "Params.sketch9_height")
pocket8 = body.newObject("PartDesign::Pocket", "Pocket007")
pocket8.Profile = sketch9
pocket8.setExpression("Length", "Params.pocket8_length")
pocket8.Reversed = True

# Sketch on YZ plane
sketch10 = body.newObject("Sketcher::SketchObject", "Sketch009")
sketch10.AttachmentSupport = (doc.getObject("YZ_Plane"), [""])
sketch10.MapMode = "FlatFace"
sketch10.AttachmentOffset = App.Placement(App.Vector(0, 0, -13.167867), App.Rotation())
sketch10.addGeometry([
    Part.LineSegment(App.Vector(7.254092, 9, 0), App.Vector(-5.745908, 9, 0)),
    Part.LineSegment(App.Vector(-5.745908, 9, 0), App.Vector(-5.745908, 1, 0)),
    Part.LineSegment(App.Vector(-5.745908, 1, 0), App.Vector(7.254092, 1, 0)),
    Part.LineSegment(App.Vector(7.254092, 1, 0), App.Vector(7.254092, 9, 0)),
], False)
sketch10.addConstraint([
    Sketcher.Constraint("Coincident", 0, 2, 1, 1),
    Sketcher.Constraint("Coincident", 1, 2, 2, 1),
    Sketcher.Constraint("Coincident", 2, 2, 3, 1),
    Sketcher.Constraint("Coincident", 3, 2, 0, 1),
    Sketcher.Constraint("Horizontal", 0),
    Sketcher.Constraint("Vertical", 1),
    Sketcher.Constraint("Horizontal", 2),
    Sketcher.Constraint("Vertical", 3),
    Sketcher.Constraint("DistanceX", 0, 2, 0, 1, 13.0),
    Sketcher.Constraint("DistanceY", 1, 2, 1, 1, 8.0),
    Sketcher.Constraint("DistanceY", -1, 1, 0, 2, 9.0),
    Sketcher.Constraint("DistanceX", 0, 2, -1, 1, 5.745908),
])
sketch10.setExpression("Constraints[8]", "Params.sketch10_width")
sketch10.setExpression("Constraints[9]", "Params.sketch10_height")
pocket9 = body.newObject("PartDesign::Pocket", "Pocket008")
pocket9.Profile = sketch10
pocket9.setExpression("Length", "Params.pocket9_length")

doc.recompute()
